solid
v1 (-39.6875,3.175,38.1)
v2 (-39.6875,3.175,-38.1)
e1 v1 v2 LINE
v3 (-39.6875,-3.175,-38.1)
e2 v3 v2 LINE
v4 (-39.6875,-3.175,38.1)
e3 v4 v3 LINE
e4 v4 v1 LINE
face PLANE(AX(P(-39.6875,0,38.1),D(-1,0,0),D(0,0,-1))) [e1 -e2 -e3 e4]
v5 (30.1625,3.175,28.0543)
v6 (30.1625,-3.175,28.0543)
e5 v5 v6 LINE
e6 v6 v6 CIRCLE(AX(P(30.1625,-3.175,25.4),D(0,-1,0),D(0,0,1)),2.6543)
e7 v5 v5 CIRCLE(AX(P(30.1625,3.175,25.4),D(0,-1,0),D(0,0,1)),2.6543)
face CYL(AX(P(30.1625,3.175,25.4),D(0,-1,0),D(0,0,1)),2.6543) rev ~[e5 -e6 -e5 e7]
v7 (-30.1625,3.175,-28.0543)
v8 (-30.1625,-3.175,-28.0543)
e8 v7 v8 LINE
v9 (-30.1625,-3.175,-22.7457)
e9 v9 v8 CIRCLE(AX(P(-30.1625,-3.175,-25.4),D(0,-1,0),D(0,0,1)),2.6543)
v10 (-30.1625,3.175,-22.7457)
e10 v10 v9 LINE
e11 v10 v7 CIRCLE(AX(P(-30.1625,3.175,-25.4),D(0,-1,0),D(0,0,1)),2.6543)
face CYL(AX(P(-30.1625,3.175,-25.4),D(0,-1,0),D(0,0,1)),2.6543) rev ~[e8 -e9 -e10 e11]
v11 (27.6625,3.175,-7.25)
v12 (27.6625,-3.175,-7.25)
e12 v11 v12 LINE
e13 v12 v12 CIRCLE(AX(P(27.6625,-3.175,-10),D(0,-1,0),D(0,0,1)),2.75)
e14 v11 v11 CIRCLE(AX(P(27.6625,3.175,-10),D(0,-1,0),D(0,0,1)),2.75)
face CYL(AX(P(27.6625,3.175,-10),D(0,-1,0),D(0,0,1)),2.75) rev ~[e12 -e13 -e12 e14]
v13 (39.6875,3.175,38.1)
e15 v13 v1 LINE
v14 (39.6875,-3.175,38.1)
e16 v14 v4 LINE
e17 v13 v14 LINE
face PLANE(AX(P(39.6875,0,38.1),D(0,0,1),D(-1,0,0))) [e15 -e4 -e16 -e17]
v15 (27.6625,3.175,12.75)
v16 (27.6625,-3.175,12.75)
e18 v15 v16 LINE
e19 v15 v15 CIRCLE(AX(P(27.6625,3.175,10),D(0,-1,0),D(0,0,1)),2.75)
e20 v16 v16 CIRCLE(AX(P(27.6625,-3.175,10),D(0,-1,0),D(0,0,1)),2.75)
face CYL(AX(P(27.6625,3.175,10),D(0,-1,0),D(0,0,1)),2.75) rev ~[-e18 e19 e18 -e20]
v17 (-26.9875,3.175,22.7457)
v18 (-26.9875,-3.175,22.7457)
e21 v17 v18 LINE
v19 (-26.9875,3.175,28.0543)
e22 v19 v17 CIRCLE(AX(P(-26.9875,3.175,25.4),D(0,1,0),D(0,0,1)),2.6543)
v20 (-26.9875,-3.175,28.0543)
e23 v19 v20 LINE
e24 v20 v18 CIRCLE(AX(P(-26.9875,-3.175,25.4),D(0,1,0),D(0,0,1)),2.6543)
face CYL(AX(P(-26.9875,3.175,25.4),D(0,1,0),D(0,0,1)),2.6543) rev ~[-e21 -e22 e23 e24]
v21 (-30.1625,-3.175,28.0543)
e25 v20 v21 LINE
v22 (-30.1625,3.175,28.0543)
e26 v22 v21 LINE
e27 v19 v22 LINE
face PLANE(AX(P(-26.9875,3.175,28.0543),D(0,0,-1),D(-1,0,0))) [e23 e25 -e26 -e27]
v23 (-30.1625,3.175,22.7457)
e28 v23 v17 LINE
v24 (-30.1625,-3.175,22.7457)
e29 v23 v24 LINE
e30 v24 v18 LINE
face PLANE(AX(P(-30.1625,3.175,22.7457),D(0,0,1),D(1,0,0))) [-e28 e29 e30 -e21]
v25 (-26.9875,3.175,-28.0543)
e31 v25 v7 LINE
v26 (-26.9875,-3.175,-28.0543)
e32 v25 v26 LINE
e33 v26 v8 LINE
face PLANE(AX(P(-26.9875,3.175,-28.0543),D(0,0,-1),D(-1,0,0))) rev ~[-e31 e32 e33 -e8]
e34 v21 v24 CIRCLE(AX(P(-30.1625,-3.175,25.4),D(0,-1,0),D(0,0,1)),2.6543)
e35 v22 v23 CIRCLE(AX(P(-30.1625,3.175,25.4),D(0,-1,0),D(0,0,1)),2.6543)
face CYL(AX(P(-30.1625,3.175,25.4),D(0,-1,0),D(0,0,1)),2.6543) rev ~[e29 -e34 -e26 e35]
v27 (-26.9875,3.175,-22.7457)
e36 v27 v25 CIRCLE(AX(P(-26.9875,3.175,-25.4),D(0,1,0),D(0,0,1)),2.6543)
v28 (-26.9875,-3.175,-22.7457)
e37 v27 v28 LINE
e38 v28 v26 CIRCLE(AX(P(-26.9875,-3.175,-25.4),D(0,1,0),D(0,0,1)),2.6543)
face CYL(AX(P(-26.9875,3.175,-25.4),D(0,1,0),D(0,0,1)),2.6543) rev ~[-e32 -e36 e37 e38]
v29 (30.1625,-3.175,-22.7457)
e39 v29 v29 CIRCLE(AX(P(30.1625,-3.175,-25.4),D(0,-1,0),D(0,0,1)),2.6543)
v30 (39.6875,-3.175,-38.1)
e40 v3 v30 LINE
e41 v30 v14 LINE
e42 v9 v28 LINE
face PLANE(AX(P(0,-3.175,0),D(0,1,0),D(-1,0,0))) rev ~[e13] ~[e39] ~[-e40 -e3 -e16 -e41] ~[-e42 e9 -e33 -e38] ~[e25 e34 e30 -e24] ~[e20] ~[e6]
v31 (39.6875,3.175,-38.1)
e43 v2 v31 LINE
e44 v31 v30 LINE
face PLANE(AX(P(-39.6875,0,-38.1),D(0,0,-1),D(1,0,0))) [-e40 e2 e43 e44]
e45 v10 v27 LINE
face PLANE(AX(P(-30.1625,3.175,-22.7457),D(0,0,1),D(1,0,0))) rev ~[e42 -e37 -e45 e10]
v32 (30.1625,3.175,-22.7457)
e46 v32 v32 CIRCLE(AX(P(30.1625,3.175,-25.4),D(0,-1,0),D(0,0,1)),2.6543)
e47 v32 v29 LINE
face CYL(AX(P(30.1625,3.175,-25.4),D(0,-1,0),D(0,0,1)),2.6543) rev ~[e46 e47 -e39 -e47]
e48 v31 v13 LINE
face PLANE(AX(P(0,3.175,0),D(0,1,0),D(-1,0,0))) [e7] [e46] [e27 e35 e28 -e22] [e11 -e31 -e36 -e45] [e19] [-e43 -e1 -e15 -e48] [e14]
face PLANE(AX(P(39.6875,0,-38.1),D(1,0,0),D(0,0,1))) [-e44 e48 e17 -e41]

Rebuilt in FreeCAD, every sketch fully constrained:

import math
import FreeCAD as App
import Part
import Sketcher
from FreeCAD import Vector
Q = App.Units.Quantity

doc = App.newDocument("Part")
body = doc.addObject("PartDesign::Body", "Body")

# Sketch on XZ plane
sketch1 = doc.addObject("Sketcher::SketchObject", "Sketch")
body.addObject(sketch1)
sketch1.AttachmentSupport = (doc.XZ_Plane, [""])
sketch1.MapMode = "FlatFace"
sketch1.addGeometry(Part.LineSegment(Vector(40, -38, 0), Vector(-40, -38, 0)), False)
sketch1.addGeometry(Part.LineSegment(Vector(-40, -38, 0), Vector(-40, 38, 0)), False)
sketch1.addGeometry(Part.LineSegment(Vector(-40, 38, 0), Vector(40, 38, 0)), False)
sketch1.addGeometry(Part.LineSegment(Vector(40, 38, 0), Vector(40, -38, 0)), False)
sketch1.addConstraint(Sketcher.Constraint("Coincident", 0, 2, 1, 1))
sketch1.addConstraint(Sketcher.Constraint("Coincident", 1, 2, 2, 1))
sketch1.addConstraint(Sketcher.Constraint("Coincident", 2, 2, 3, 1))
sketch1.addConstraint(Sketcher.Constraint("Coincident", 3, 2, 0, 1))
sketch1.addConstraint(Sketcher.Constraint("Horizontal", 0))
sketch1.addConstraint(Sketcher.Constraint("Vertical", 1))
sketch1.addConstraint(Sketcher.Constraint("Horizontal", 2))
sketch1.addConstraint(Sketcher.Constraint("Vertical", 3))
sketch1.addConstraint(Sketcher.Constraint("Symmetric", 0, 2, 2, 2, -1, 1))
sketch1.addConstraint(Sketcher.Constraint("DistanceY", 1, 1, 1, 2, Q("3 in")))
sketch1.addConstraint(Sketcher.Constraint("DistanceX", 0, 2, 0, 1, Q("3.125 in")))
pad1 = doc.addObject("PartDesign::Pad", "Pad")
body.addObject(pad1)
pad1.Profile = sketch1
pad1.Length = Q("0.25 in")
pad1.Midplane = True

# Sketch on XZ plane
sketch2 = doc.addObject("Sketcher::SketchObject", "Sketch001")
body.addObject(sketch2)
sketch2.AttachmentSupport = (doc.XZ_Plane, [""])
sketch2.MapMode = "FlatFace"
sketch2.AttachmentOffset = App.Placement(Vector(0, 0, -0.125 * 25.4), App.Rotation())
sketch2.addGeometry(Part.Circle(Vector(-30.2, -25.4, 0), Vector(0, 0, 1), 2.7), False)
sketch2.addGeometry(Part.Circle(Vector(-30.2, 25.4, 0), Vector(0, 0, 1), 2.7), False)
sketch2.addGeometry(Part.Circle(Vector(30.2, -25.4, 0), Vector(0, 0, 1), 2.7), False)
sketch2.addGeometry(Part.Circle(Vector(30.2, 25.4, 0), Vector(0, 0, 1), 2.7), False)
sketch2.addConstraint(Sketcher.Constraint("Equal", 0, 1))
sketch2.addConstraint(Sketcher.Constraint("Equal", 1, 2))
sketch2.addConstraint(Sketcher.Constraint("Equal", 2, 3))
sketch2.addConstraint(Sketcher.Constraint("Symmetric", 1, 3, 2, 3, -1, 1))
sketch2.addConstraint(Sketcher.Constraint("Symmetric", 0, 3, 3, 3, -1, 1))
sketch2.addConstraint(Sketcher.Constraint("Symmetric", 0, 3, 2, 3, -2))
sketch2.addConstraint(Sketcher.Constraint("Diameter", 0, Q("0.209 in")))
sketch2.addConstraint(Sketcher.Constraint("DistanceY", 0, 3, -1, 1, Q("1 in")))
sketch2.addConstraint(Sketcher.Constraint("DistanceX", 0, 3, -1, 1, Q("1.1875 in")))
doc.recompute()
hole = doc.addObject("PartDesign::Hole", "Hole")
body.addObject(hole)
hole.Profile = sketch2
hole.ThreadType = "None"
hole.Diameter = Q("0.209 in")
hole.DepthType = "ThroughAll"
hole.Reversed = True

# Sketch on XZ plane
sketch3 = doc.addObject("Sketcher::SketchObject", "Sketch002")
body.addObject(sketch3)
sketch3.AttachmentSupport = (doc.XZ_Plane, [""])
sketch3.MapMode = "FlatFace"
sketch3.AttachmentOffset = App.Placement(Vector(0, 0, -0.125 * 25.4), App.Rotation())
sketch3.addGeometry(Part.ArcOfCircle(Part.Circle(Vector(-30.2, -25.4, 0), Vector(0, 0, 1), 2.7), math.radians(-90), math.radians(90)), False)
sketch3.addGeometry(Part.LineSegment(Vector(-30.2, -22.7, 0), Vector(-27, -22.7, 0)), False)
sketch3.addGeometry(Part.ArcOfCircle(Part.Circle(Vector(-27, -25.4, 0), Vector(0, 0, 1), 2.7), math.radians(-90), math.radians(90)), False)
sketch3.addGeometry(Part.LineSegment(Vector(-27, -28.1, 0), Vector(-30.2, -28.1, 0)), False)
sketch3.addGeometry(Part.ArcOfCircle(Part.Circle(Vector(-30.2, 25.4, 0), Vector(0, 0, 1), 2.7), math.radians(-90), math.radians(90)), False)
sketch3.addGeometry(Part.LineSegment(Vector(-30.2, 28.1, 0), Vector(-27, 28.1, 0)), False)
sketch3.addGeometry(Part.ArcOfCircle(Part.Circle(Vector(-27, 25.4, 0), Vector(0, 0, 1), 2.7), math.radians(-90), math.radians(90)), False)
sketch3.addGeometry(Part.LineSegment(Vector(-27, 22.7, 0), Vector(-30.2, 22.7, 0)), False)
sketch3.addConstraint(Sketcher.Constraint("Tangent", 0, 2, 1, 1))
sketch3.addConstraint(Sketcher.Constraint("Tangent", 1, 2, 2, 2))
sketch3.addConstraint(Sketcher.Constraint("Tangent", 2, 1, 3, 1))
sketch3.addConstraint(Sketcher.Constraint("Tangent", 3, 2, 0, 1))
sketch3.addConstraint(Sketcher.Constraint("Tangent", 4, 2, 5, 1))
sketch3.addConstraint(Sketcher.Constraint("Tangent", 5, 2, 6, 2))
sketch3.addConstraint(Sketcher.Constraint("Tangent", 6, 1, 7, 1))
sketch3.addConstraint(Sketcher.Constraint("Tangent", 7, 2, 4, 1))
sketch3.addConstraint(Sketcher.Constraint("Horizontal", 1))
sketch3.addConstraint(Sketcher.Constraint("Horizontal", 3))
sketch3.addConstraint(Sketcher.Constraint("Horizontal", 5))
sketch3.addConstraint(Sketcher.Constraint("Horizontal", 7))
sketch3.addConstraint(Sketcher.Constraint("Equal", 2, 4))
sketch3.addConstraint(Sketcher.Constraint("Symmetric", 0, 3, 4, 3, -1))
sketch3.addConstraint(Sketcher.Constraint("Vertical", 2, 3, 6, 3))
sketch3.addConstraint(Sketcher.Constraint("DistanceX", 1, 1, 1, 2, Q("0.125 in")))
sketch3.addConstraint(Sketcher.Constraint("DistanceY", 0, 3, -1, 1, Q("1 in")))
sketch3.addConstraint(Sketcher.Constraint("Radius", 0, Q("0.1045 in")))
sketch3.addConstraint(Sketcher.Constraint("DistanceX", 0, 3, -1, 1, Q("1.1875 in")))
pocket1 = doc.addObject("PartDesign::Pocket", "Pocket")
body.addObject(pocket1)
pocket1.Profile = sketch3
pocket1.Length = Q("0.25 in")
pocket1.Reversed = True

# Sketch on XZ plane
sketch4 = doc.addObject("Sketcher::SketchObject", "Sketch003")
body.addObject(sketch4)
sketch4.AttachmentSupport = (doc.XZ_Plane, [""])
sketch4.MapMode = "FlatFace"
sketch4.AttachmentOffset = App.Placement(Vector(0, 0, -0.125 * 25.4), App.Rotation())
sketch4.addGeometry(Part.Circle(Vector(27.7, -10, 0), Vector(0, 0, 1), 2.8), False)
sketch4.addGeometry(Part.Circle(Vector(27.7, 10, 0), Vector(0, 0, 1), 2.8), False)
sketch4.addConstraint(Sketcher.Constraint("Equal", 0, 1))
sketch4.addConstraint(Sketcher.Constraint("Symmetric", 0, 3, 1, 3, -1))
sketch4.addConstraint(Sketcher.Constraint("Diameter", 0, 5.5))
sketch4.addConstraint(Sketcher.Constraint("DistanceY", 0, 3, -1, 1, Q("0.3937 in")))
sketch4.addConstraint(Sketcher.Constraint("DistanceX", -1, 1, 0, 3, 27.6625))
doc.recompute()
hole2 = doc.addObject("PartDesign::Hole", "Hole001")
body.addObject(hole2)
hole2.Profile = sketch4
hole2.ThreadType = "None"
hole2.Diameter = 5.5
hole2.DepthType = "ThroughAll"
hole2.Reversed = True

doc.recompute()
